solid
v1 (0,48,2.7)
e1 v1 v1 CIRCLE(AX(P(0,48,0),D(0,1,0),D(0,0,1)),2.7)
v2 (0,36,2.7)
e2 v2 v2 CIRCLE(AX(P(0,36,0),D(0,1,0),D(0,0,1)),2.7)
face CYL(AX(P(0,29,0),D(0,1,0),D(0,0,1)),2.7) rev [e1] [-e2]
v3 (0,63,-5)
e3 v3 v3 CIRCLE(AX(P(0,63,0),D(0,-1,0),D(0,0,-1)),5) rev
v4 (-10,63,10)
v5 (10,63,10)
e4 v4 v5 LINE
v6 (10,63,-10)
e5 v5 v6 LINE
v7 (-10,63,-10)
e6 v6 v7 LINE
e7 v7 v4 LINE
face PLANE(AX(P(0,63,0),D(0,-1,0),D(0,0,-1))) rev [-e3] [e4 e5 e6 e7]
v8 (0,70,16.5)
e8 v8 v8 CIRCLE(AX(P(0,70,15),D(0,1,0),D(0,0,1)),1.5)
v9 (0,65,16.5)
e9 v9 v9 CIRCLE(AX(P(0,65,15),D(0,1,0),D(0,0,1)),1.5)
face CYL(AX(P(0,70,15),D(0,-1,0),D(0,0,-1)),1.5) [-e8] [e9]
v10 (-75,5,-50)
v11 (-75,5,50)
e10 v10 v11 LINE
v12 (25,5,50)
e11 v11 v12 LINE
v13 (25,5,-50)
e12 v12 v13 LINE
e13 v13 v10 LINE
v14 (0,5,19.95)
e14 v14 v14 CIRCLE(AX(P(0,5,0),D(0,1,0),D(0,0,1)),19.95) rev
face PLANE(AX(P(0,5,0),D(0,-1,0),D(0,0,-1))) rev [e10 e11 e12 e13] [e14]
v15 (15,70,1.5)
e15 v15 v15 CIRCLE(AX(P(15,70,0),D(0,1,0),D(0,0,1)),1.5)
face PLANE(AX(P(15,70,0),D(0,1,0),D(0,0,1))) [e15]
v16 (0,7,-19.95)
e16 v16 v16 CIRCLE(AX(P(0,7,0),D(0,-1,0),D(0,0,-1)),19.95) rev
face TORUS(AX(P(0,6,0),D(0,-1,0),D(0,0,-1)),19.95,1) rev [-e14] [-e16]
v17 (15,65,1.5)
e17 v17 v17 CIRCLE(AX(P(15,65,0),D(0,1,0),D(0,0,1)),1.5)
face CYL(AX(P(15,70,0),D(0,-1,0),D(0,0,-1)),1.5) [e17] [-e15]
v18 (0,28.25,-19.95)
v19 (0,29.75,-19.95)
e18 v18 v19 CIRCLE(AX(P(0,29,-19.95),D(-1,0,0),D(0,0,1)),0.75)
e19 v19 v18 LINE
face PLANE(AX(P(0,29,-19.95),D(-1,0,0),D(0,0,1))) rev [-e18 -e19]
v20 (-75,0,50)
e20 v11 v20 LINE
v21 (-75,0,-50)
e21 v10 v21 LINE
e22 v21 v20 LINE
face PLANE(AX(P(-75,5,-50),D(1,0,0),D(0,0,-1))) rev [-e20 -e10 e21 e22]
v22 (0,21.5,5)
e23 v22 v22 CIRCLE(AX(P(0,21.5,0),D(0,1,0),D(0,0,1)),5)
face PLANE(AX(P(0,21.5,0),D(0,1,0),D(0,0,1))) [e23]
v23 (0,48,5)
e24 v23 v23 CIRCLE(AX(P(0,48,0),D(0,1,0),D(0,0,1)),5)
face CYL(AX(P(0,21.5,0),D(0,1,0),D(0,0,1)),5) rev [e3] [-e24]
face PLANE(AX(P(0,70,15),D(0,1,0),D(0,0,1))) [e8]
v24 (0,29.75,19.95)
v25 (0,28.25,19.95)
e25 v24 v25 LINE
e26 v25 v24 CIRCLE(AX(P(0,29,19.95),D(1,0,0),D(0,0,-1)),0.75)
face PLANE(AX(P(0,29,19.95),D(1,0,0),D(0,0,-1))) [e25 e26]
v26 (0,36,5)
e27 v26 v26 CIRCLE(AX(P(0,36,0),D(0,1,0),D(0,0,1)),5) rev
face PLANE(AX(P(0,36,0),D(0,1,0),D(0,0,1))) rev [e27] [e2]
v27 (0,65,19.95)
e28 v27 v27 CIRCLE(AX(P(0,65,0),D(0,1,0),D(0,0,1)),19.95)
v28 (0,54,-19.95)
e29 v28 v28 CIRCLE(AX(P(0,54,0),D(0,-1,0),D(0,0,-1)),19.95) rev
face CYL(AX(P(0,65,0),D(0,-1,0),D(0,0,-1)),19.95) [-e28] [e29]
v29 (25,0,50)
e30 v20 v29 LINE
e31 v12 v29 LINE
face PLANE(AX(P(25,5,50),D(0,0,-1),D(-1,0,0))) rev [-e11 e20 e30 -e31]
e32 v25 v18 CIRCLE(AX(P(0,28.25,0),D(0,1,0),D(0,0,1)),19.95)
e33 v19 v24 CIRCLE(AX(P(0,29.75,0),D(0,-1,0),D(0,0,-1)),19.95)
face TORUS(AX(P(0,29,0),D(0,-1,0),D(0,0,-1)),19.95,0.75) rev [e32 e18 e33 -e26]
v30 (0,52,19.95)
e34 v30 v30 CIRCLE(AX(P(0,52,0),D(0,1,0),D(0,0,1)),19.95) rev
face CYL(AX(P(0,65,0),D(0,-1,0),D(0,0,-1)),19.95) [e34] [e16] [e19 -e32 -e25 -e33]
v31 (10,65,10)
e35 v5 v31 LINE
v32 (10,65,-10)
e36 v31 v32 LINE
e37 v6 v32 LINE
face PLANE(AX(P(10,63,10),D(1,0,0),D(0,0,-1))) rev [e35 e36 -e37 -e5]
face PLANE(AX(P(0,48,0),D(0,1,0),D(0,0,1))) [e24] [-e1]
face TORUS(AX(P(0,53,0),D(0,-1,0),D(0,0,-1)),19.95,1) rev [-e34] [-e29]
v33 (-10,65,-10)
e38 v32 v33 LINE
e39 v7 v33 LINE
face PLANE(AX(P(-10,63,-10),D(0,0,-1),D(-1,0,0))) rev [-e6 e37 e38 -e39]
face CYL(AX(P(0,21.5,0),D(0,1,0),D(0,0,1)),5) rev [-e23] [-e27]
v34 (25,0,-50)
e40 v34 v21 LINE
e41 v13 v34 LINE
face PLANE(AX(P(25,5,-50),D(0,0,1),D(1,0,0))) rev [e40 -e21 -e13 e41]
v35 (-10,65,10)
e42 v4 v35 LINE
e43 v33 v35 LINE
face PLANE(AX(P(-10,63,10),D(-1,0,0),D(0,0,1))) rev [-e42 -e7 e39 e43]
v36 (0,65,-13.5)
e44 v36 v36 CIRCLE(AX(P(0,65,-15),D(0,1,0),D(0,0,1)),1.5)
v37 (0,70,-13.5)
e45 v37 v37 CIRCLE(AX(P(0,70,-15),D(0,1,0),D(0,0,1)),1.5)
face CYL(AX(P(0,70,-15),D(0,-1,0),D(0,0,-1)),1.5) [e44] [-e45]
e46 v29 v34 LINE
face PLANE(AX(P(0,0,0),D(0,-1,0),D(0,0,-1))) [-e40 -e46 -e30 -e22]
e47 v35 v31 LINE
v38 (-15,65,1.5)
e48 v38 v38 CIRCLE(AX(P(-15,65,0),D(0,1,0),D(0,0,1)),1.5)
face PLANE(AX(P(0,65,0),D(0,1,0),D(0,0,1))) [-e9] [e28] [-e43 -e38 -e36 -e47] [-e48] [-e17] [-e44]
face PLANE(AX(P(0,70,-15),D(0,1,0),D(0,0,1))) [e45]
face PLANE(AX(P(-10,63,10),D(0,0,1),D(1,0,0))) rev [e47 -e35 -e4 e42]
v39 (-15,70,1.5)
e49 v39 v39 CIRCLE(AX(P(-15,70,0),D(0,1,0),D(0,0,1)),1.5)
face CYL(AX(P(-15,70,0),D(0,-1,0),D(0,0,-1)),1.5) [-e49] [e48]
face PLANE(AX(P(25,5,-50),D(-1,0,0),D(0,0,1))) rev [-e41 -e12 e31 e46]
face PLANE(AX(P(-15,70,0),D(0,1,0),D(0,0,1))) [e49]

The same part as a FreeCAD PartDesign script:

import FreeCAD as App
import Part
import Sketcher
from FreeCAD import Vector

doc = App.newDocument("Part")
body = doc.addObject("PartDesign::Body", "Body")

# Sketch on XZ plane
sketch1 = doc.addObject("Sketcher::SketchObject", "Sketch")
body.addObject(sketch1)
sketch1.AttachmentSupport = (doc.XZ_Plane, [""])
sketch1.MapMode = "FlatFace"
sketch1.addGeometry([
    Part.LineSegment(Vector(-75, -50, 0), Vector(-75, 50, 0)),
    Part.LineSegment(Vector(-75, 50, 0), Vector(25, 50, 0)),
    Part.LineSegment(Vector(25, 50, 0), Vector(25, -50, 0)),
    Part.LineSegment(Vector(25, -50, 0), Vector(-75, -50, 0)),
], False)
sketch1.addConstraint([
    Sketcher.Constraint("Coincident", 0, 2, 1, 1),
    Sketcher.Constraint("Coincident", 1, 2, 2, 1),
    Sketcher.Constraint("Coincident", 2, 2, 3, 1),
    Sketcher.Constraint("Coincident", 3, 2, 0, 1),
    Sketcher.Constraint("Vertical", 0),
    Sketcher.Constraint("Horizontal", 1),
    Sketcher.Constraint("Vertical", 2),
    Sketcher.Constraint("Horizontal", 3),
    Sketcher.Constraint("Equal", 3, 0),
    Sketcher.Constraint("DistanceX", 1, 1, 1, 2, 100.0),
    Sketcher.Constraint("DistanceX", 0, 2, -1, 1, 75.0),
    Sketcher.Constraint("DistanceY", -1, 1, 0, 2, 50.0),
])
pad1 = doc.addObject("PartDesign::Pad", "Pad")
body.addObject(pad1)
pad1.Profile = sketch1
pad1.Length = 5
pad1.Reversed = True

# Sketch on XZ plane
sketch2 = doc.addObject("Sketcher::SketchObject", "Sketch001")
body.addObject(sketch2)
sketch2.AttachmentSupport = (doc.XZ_Plane, [""])
sketch2.MapMode = "FlatFace"
sketch2.AttachmentOffset = App.Placement(Vector(0, 0, -5), App.Rotation())
sketch2.addGeometry(Part.Circle(Vector(0, 0, 0), Vector(0, 0, 1), 20), False)
sketch2.addConstraint([
    Sketcher.Constraint("Coincident", 0, 3, -1, 1),
    Sketcher.Constraint("Diameter", 0, 39.9),
])
pad2 = doc.addObject("PartDesign::Pad", "Pad001")
body.addObject(pad2)
pad2.Profile = sketch2
pad2.Length = 60
pad2.Reversed = True

# Sketch on XZ plane
sketch3 = doc.addObject("Sketcher::SketchObject", "Sketch002")
body.addObject(sketch3)
sketch3.AttachmentSupport = (doc.XZ_Plane, [""])
sketch3.MapMode = "FlatFace"
sketch3.AttachmentOffset = App.Placement(Vector(0, 0, -65), App.Rotation())
sketch3.addGeometry(Part.Circle(Vector(0, 0, 0), Vector(0, 0, 1), 5), False)
sketch3.addConstraint([
    Sketcher.Constraint("Coincident", 0, 3, -1, 1),
    Sketcher.Constraint("Diameter", 0, 10.0),
])
pocket1 = doc.addObject("PartDesign::Pocket", "Pocket")
body.addObject(pocket1)
pocket1.Profile = sketch3
pocket1.Length = 43.5
pocket1.Reversed = True

# Sketch on XY plane
sketch4 = doc.addObject("Sketcher::SketchObject", "Sketch003")
body.addObject(sketch4)
sketch4.AttachmentSupport = (doc.XY_Plane, [""])
sketch4.MapMode = "FlatFace"
sketch4.addGeometry(Part.Circle(Vector(19.9, 6, 0), Vector(0, 0, 1), 1), False)
sketch4.addConstraint([
    Sketcher.Constraint("Diameter", 0, 2.0),
    Sketcher.Constraint("DistanceY", -1, 1, 0, 3, 6.0),
    Sketcher.Constraint("DistanceX", -1, 1, 0, 3, 19.95),
])
groove = doc.addObject("PartDesign::Groove", "Groove")
body.addObject(groove)
groove.Profile = sketch4
groove.ReferenceAxis = (sketch4, ["V_Axis"])
groove.Angle = 360

# Sketch on XY plane
sketch5 = doc.addObject("Sketcher::SketchObject", "Sketch004")
body.addObject(sketch5)
sketch5.AttachmentSupport = (doc.XY_Plane, [""])
sketch5.MapMode = "FlatFace"
sketch5.addGeometry(Part.Circle(Vector(19.9, 53, 0), Vector(0, 0, 1), 1), False)
sketch5.addConstraint([
    Sketcher.Constraint("Diameter", 0, 2.0),
    Sketcher.Constraint("DistanceY", -1, 1, 0, 3, 53.0),
    Sketcher.Constraint("DistanceX", -1, 1, 0, 3, 19.95),
])
groove2 = doc.addObject("PartDesign::Groove", "Groove001")
body.addObject(groove2)
groove2.Profile = sketch5
groove2.ReferenceAxis = (sketch5, ["V_Axis"])
groove2.Angle = 360

# Sketch on XZ plane
sketch6 = doc.addObject("Sketcher::SketchObject", "Sketch005")
body.addObject(sketch6)
sketch6.AttachmentSupport = (doc.XZ_Plane, [""])
sketch6.MapMode = "FlatFace"
sketch6.AttachmentOffset = App.Placement(Vector(0, 0, -38), App.Rotation())
sketch6.addGeometry(Part.Circle(Vector(0, 0, 0), Vector(0, 0, 1), 5), False)
sketch6.addConstraint([
    Sketcher.Constraint("Coincident", 0, 3, -1, 1),
    Sketcher.Constraint("Diameter", 0, 10.0),
])
pad3 = doc.addObject("PartDesign::Pad", "Pad002")
body.addObject(pad3)
pad3.Profile = sketch6
pad3.Type = "TwoLengths"
pad3.Length = 10
pad3.Length2 = 2
pad3.Reversed = True

# Sketch on XZ plane
sketch7 = doc.addObject("Sketcher::SketchObject", "Sketch006")
body.addObject(sketch7)
sketch7.AttachmentSupport = (doc.XZ_Plane, [""])
sketch7.MapMode = "FlatFace"
sketch7.AttachmentOffset = App.Placement(Vector(0, 0, -65), App.Rotation())
sketch7.addGeometry(Part.Circle(Vector(0, 0, 0), Vector(0, 0, 1), 5), False)
sketch7.addConstraint([
    Sketcher.Constraint("Coincident", 0, 3, -1, 1),
    Sketcher.Constraint("Diameter", 0, 10.0),
])
pad4 = doc.addObject("PartDesign::Pad", "Pad003")
body.addObject(pad4)
pad4.Profile = sketch7
pad4.Length = 1

# Sketch on XZ plane
sketch8 = doc.addObject("Sketcher::SketchObject", "Sketch007")
body.addObject(sketch8)
sketch8.AttachmentSupport = (doc.XZ_Plane, [""])
sketch8.MapMode = "FlatFace"
sketch8.AttachmentOffset = App.Placement(Vector(0, 0, -65), App.Rotation())
sketch8.addGeometry(Part.Circle(Vector(0, 0, 0), Vector(0, 0, 1), 2.7), False)
sketch8.addConstraint([
    Sketcher.Constraint("Coincident", 0, 3, -1, 1),
    Sketcher.Constraint("Diameter", 0, 5.4),
])
pocket2 = doc.addObject("PartDesign::Pocket", "Pocket001")
body.addObject(pocket2)
pocket2.Profile = sketch8
pocket2.Length = 36
pocket2.Reversed = True

# Sketch on YZ plane
sketch9 = doc.addObject("Sketcher::SketchObject", "Sketch008")
body.addObject(sketch9)
sketch9.AttachmentSupport = (doc.YZ_Plane, [""])
sketch9.MapMode = "FlatFace"
sketch9.addGeometry(Part.Circle(Vector(29, 19.9, 0), Vector(0, 0, 1), 0.8), False)
sketch9.addConstraint([
    Sketcher.Constraint("Diameter", 0, 1.5),
    Sketcher.Constraint("DistanceX", -1, 1, 0, 3, 29.0),
    Sketcher.Constraint("DistanceY", -1, 1, 0, 3, 19.95),
])
groove3 = doc.addObject("PartDesign::Groove", "Groove002")
body.addObject(groove3)
groove3.Profile = sketch9
groove3.ReferenceAxis = (sketch9, ["H_Axis"])
groove3.Angle = 180

# Sketch on XZ plane
sketch10 = doc.addObject("Sketcher::SketchObject", "Sketch009")
body.addObject(sketch10)
sketch10.AttachmentSupport = (doc.XZ_Plane, [""])
sketch10.MapMode = "FlatFace"
sketch10.AttachmentOffset = App.Placement(Vector(0, 0, -65), App.Rotation())
sketch10.addGeometry([
    Part.LineSegment(Vector(-10, -10, 0), Vector(-10, 10, 0)),
    Part.LineSegment(Vector(-10, 10, 0), Vector(10, 10, 0)),
    Part.LineSegment(Vector(10, 10, 0), Vector(10, -10, 0)),
    Part.LineSegment(Vector(10, -10, 0), Vector(-10, -10, 0)),
], False)
sketch10.addConstraint([
    Sketcher.Constraint("Coincident", 0, 2, 1, 1),
    Sketcher.Constraint("Coincident", 1, 2, 2, 1),
    Sketcher.Constraint("Coincident", 2, 2, 3, 1),
    Sketcher.Constraint("Coincident", 3, 2, 0, 1),
    Sketcher.Constraint("Vertical", 0),
    Sketcher.Constraint("Horizontal", 1),
    Sketcher.Constraint("Vertical", 2),
    Sketcher.Constraint("Horizontal", 3),
    Sketcher.Constraint("Symmetric", 0, 2, 2, 2, -1, 1),
    Sketcher.Constraint("Equal", 3, 0),
    Sketcher.Constraint("DistanceX", 1, 1, 1, 2, 20.0),
])
pocket3 = doc.addObject("PartDesign::Pocket", "Pocket002")
body.addObject(pocket3)
pocket3.Profile = sketch10
pocket3.Length = 2
pocket3.Reversed = True

# Sketch on XZ plane
sketch11 = doc.addObject("Sketcher::SketchObject", "Sketch010")
body.addObject(sketch11)
sketch11.AttachmentSupport = (doc.XZ_Plane, [""])
sketch11.MapMode = "FlatFace"
sketch11.AttachmentOffset = App.Placement(Vector(0, 0, -65), App.Rotation())
sketch11.addGeometry([
    Part.Circle(Vector(0, 15, 0), Vector(0, 0, 1), 1.5),
    Part.Circle(Vector(0, -15, 0), Vector(0, 0, 1), 1.5),
    Part.Circle(Vector(-15, 0, 0), Vector(0, 0, 1), 1.5),
    Part.Circle(Vector(15, 0, 0), Vector(0, 0, 1), 1.5),
], False)
sketch11.addConstraint([
    Sketcher.Constraint("Equal", 0, 1),
    Sketcher.Constraint("Equal", 1, 2),
    Sketcher.Constraint("Equal", 2, 3),
    Sketcher.Constraint("Symmetric", 0, 3, 1, 3, -1, 1),
    Sketcher.Constraint("Symmetric", 2, 3, 3, 3, -1, 1),
    Sketcher.Constraint("PointOnObject", 0, 3, -2),
    Sketcher.Constraint("PointOnObject", 2, 3, -1),
    Sketcher.Constraint("Diameter", 0, 3.0),
    Sketcher.Constraint("DistanceY", -1, 1, 0, 3, 15.0),
    Sketcher.Constraint("DistanceX", 2, 3, -1, 1, 15.0),
])
pad5 = doc.addObject("PartDesign::Pad", "Pad004")
body.addObject(pad5)
pad5.Profile = sketch11
pad5.Length = 5
pad5.Reversed = True

doc.recompute()
